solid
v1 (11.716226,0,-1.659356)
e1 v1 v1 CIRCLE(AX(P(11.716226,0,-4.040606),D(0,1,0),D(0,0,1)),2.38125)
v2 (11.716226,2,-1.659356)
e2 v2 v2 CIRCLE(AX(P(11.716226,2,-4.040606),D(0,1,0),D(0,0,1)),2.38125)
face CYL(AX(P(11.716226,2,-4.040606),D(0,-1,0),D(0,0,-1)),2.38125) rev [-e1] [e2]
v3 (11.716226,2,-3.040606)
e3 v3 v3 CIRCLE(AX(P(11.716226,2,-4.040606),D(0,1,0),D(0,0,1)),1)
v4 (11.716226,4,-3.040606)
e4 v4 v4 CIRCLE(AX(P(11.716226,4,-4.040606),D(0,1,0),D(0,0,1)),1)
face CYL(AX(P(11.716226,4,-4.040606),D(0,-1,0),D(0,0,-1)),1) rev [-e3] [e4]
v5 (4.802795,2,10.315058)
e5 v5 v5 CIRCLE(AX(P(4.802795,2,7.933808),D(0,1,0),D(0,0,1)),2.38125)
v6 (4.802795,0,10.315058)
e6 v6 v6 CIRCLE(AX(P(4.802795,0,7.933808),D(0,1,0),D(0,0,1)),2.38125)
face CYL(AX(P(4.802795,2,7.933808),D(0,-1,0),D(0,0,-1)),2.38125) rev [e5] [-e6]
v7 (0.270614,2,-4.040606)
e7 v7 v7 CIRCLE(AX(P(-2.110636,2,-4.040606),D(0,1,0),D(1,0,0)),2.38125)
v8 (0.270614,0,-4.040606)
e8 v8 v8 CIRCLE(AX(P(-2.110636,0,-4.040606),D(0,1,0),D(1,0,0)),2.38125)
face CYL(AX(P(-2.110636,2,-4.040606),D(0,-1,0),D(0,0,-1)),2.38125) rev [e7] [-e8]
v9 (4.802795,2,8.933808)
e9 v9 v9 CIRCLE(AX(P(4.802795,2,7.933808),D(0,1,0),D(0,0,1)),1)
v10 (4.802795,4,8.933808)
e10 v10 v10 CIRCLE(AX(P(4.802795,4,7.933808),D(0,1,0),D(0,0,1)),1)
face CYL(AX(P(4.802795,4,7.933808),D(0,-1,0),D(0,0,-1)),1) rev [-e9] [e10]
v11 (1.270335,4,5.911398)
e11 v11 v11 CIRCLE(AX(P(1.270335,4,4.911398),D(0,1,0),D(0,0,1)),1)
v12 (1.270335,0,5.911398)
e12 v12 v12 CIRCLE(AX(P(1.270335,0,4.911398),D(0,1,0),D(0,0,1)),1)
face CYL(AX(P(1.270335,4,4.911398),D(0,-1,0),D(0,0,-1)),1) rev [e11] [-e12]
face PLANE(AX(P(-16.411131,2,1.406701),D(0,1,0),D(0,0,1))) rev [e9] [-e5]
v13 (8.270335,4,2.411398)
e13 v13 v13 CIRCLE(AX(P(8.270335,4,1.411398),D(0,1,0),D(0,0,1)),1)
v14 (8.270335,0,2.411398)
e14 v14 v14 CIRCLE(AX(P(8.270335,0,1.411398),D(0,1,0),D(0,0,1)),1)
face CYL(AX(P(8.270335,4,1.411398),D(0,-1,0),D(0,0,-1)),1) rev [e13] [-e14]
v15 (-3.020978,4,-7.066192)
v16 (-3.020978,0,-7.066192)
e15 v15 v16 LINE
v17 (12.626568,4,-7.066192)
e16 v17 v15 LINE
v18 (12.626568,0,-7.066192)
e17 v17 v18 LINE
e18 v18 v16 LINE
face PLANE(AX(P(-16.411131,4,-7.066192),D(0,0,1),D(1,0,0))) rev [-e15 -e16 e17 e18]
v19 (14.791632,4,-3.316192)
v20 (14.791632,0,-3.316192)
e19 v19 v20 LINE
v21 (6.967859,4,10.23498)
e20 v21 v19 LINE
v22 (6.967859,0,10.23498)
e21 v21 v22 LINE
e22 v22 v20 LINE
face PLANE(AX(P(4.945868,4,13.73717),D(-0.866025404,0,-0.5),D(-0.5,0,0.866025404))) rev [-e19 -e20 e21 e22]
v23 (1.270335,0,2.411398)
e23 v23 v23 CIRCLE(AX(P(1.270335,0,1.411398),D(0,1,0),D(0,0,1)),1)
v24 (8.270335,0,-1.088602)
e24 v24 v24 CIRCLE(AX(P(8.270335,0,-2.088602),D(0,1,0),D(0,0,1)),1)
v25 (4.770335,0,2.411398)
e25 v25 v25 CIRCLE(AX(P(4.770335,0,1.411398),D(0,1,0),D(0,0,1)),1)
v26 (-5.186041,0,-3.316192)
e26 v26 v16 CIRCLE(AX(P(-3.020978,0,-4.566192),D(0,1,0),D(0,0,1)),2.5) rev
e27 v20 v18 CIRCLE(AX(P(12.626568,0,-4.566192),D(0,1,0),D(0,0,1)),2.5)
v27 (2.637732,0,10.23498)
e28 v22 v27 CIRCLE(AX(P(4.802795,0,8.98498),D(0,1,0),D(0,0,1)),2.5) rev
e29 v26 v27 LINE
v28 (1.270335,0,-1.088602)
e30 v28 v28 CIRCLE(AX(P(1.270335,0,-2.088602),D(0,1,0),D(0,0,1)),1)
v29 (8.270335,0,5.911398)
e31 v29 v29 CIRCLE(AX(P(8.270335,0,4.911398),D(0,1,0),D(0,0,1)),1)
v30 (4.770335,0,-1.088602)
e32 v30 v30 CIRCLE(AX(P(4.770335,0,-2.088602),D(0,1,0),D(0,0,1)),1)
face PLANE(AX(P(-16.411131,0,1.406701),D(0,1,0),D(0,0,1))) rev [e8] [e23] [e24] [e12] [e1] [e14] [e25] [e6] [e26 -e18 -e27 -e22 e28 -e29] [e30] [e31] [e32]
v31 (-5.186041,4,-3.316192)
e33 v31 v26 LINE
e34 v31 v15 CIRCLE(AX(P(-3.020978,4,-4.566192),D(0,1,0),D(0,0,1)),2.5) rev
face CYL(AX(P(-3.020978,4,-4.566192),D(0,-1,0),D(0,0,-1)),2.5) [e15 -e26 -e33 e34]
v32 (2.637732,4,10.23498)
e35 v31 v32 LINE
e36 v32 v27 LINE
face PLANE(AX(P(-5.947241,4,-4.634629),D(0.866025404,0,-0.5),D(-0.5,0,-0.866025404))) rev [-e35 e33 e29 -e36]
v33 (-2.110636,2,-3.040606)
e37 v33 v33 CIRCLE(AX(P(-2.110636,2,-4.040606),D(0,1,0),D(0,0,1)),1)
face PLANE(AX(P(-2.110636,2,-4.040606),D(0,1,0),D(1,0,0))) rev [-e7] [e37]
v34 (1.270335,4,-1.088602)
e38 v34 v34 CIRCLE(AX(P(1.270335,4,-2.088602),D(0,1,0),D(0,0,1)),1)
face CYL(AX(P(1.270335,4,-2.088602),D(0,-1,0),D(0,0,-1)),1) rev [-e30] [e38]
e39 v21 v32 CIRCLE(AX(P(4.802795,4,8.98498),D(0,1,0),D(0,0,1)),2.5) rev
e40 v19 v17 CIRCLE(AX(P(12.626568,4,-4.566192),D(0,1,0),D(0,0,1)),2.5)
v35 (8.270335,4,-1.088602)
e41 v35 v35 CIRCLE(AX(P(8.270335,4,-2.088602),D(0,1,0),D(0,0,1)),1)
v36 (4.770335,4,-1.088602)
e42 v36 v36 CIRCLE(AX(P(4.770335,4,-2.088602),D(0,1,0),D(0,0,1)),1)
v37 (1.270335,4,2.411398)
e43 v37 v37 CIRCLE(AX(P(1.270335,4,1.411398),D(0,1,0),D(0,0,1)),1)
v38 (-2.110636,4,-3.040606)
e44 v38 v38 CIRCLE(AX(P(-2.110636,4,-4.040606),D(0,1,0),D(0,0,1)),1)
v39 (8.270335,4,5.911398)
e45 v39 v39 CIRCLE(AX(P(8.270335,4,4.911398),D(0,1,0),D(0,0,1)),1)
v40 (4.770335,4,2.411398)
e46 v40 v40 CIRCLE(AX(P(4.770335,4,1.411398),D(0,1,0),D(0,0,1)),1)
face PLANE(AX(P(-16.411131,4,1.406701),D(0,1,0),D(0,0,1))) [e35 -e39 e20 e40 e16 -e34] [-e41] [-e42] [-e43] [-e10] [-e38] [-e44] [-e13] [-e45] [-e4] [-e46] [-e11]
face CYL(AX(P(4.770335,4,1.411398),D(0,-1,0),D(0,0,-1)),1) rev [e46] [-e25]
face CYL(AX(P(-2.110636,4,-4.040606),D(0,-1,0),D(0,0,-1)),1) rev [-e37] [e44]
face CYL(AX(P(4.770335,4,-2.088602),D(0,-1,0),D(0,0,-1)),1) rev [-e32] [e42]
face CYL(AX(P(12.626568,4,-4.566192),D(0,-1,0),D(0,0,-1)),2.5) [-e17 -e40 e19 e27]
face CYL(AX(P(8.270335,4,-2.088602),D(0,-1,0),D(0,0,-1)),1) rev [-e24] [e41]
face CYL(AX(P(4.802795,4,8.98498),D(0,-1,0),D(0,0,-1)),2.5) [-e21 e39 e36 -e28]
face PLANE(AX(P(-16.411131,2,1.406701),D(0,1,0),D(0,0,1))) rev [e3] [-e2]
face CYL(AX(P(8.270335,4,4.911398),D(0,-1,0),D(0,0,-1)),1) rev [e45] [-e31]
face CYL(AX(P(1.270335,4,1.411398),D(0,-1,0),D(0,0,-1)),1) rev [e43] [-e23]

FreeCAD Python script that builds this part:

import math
import FreeCAD as App
import Part
import Sketcher
Q = App.Units.Quantity

doc = App.newDocument("Part")
body = doc.addObject("PartDesign::Body", "Body")

sketch1 = body.newObject("Sketcher::SketchObject", "Sketch")
sketch1.AttachmentSupport = (doc.getObject("XZ_Plane"), [""])
sketch1.MapMode = "FlatFace"
sketch1.addGeometry([
    Part.LineSegment(App.Vector(-5.2, -3.3, 0), App.Vector(2.6, 10.2, 0)),
    Part.ArcOfCircle(Part.Circle(App.Vector(4.8, 9, 0), App.Vector(0, 0, 1), 2.5), math.radians(30), math.radians(150)),
    Part.LineSegment(App.Vector(7, 10.2, 0), App.Vector(14.8, -3.3, 0)),
    Part.ArcOfCircle(Part.Circle(App.Vector(12.6, -4.6, 0), App.Vector(0, 0, 1), 2.5), math.radians(-90), math.radians(30)),
    Part.LineSegment(App.Vector(12.6, -7.1, 0), App.Vector(-3, -7.1, 0)),
    Part.ArcOfCircle(Part.Circle(App.Vector(-3, -4.6, 0), App.Vector(0, 0, 1), 2.5), math.radians(150), math.radians(270)),
    Part.Circle(App.Vector(1.3, 4.9, 0), App.Vector(0, 0, 1), 1),
    Part.Circle(App.Vector(4.8, 7.9, 0), App.Vector(0, 0, 1), 1),
    Part.Circle(App.Vector(8.3, 4.9, 0), App.Vector(0, 0, 1), 1),
    Part.Circle(App.Vector(1.3, 1.4, 0), App.Vector(0, 0, 1), 1),
    Part.Circle(App.Vector(4.8, 1.4, 0), App.Vector(0, 0, 1), 1),
    Part.Circle(App.Vector(-2.1, -4, 0), App.Vector(0, 0, 1), 1),
    Part.Circle(App.Vector(1.3, -2.1, 0), App.Vector(0, 0, 1), 1),
    Part.Circle(App.Vector(4.8, -2.1, 0), App.Vector(0, 0, 1), 1),
    Part.Circle(App.Vector(8.3, 1.4, 0), App.Vector(0, 0, 1), 1),
    Part.Circle(App.Vector(8.3, -2.1, 0), App.Vector(0, 0, 1), 1),
    Part.Circle(App.Vector(11.7, -4, 0), App.Vector(0, 0, 1), 1),
], False)
sketch1.addConstraint([
    Sketcher.Constraint("Tangent", 0, 2, 1, 2),
    Sketcher.Constraint("Tangent", 1, 1, 2, 1),
    Sketcher.Constraint("Tangent", 2, 2, 3, 2),
    Sketcher.Constraint("Tangent", 3, 1, 4, 1),
    Sketcher.Constraint("Tangent", 4, 2, 5, 2),
    Sketcher.Constraint("Tangent", 5, 1, 0, 1),
    Sketcher.Constraint("Horizontal", 4),
    Sketcher.Constraint("Equal", 1, 3),
    Sketcher.Constraint("Equal", 3, 5),
    Sketcher.Constraint("Equal", 6, 7),
    Sketcher.Constraint("Equal", 7, 8),
    Sketcher.Constraint("Equal", 8, 9),
    Sketcher.Constraint("Equal", 9, 10),
    Sketcher.Constraint("Equal", 10, 11),
    Sketcher.Constraint("Equal", 11, 12),
    Sketcher.Constraint("Equal", 12, 13),
    Sketcher.Constraint("Equal", 13, 14),
    Sketcher.Constraint("Equal", 14, 15),
    Sketcher.Constraint("Equal", 15, 16),
    Sketcher.Constraint("Horizontal", 6, 3, 8, 3),
    Sketcher.Constraint("Horizontal", 9, 3, 10, 3),
    Sketcher.Constraint("Horizontal", 12, 3, 13, 3),
    Sketcher.Constraint("Horizontal", 10, 3, 14, 3),
    Sketcher.Constraint("Horizontal", 13, 3, 15, 3),
    Sketcher.Constraint("Horizontal", 11, 3, 16, 3),
    Sketcher.Constraint("Horizontal", 0, 2, 1, 1),
    Sketcher.Constraint("Vertical", 1, 3, 7, 3),
    Sketcher.Constraint("Vertical", 6, 3, 9, 3),
    Sketcher.Constraint("Vertical", 9, 3, 12, 3),
    Sketcher.Constraint("Vertical", 10, 3, 13, 3),
    Sketcher.Constraint("Vertical", 8, 3, 14, 3),
    Sketcher.Constraint("Vertical", 14, 3, 15, 3),
    Sketcher.Constraint("Diameter", 6, 2.0),
    Sketcher.Constraint("Radius", 1, 2.5),
    Sketcher.Constraint("Angle", 0, Q("60 deg")),
    Sketcher.Constraint("DistanceX", 6, 3, 8, 3, 7.0),
    Sketcher.Constraint("DistanceY", 12, 3, 6, 3, 7.0),
    Sketcher.Constraint("DistanceY", 5, 3, 7, 3, 12.5),
    Sketcher.Constraint("DistanceY", 9, 3, 6, 3, 3.5),
    Sketcher.Constraint("DistanceX", 9, 3, 10, 3, 3.5),
    Sketcher.Constraint("DistanceX", 4, 2, 4, 1, 15.647546),
    Sketcher.Constraint("DistanceY", -1, 1, 1, 3, 8.98498),
    Sketcher.Constraint("DistanceX", -1, 1, 3, 3, 12.626568),
    Sketcher.Constraint("DistanceX", 6, 3, 1, 3, 3.532461),
    Sketcher.Constraint("DistanceY", 5, 3, 6, 3, 9.47759),
    Sketcher.Constraint("DistanceX", 5, 3, 11, 3, 0.910342),
    Sketcher.Constraint("DistanceX", 16, 3, 3, 3, 0.910342),
    Sketcher.Constraint("DistanceY", 11, 3, -1, 1, 4.040606),
])
pad1 = body.newObject("PartDesign::Pad", "Pad")
pad1.Profile = sketch1
pad1.Length = 4
pad1.Reversed = True

sketch2 = body.newObject("Sketcher::SketchObject", "Sketch001")
sketch2.AttachmentSupport = (doc.getObject("XZ_Plane"), [""])
sketch2.MapMode = "FlatFace"
sketch2.addGeometry([
    Part.Circle(App.Vector(-2.1, -4, 0), App.Vector(0, 0, 1), 2.4),
    Part.Circle(App.Vector(4.8, 7.9, 0), App.Vector(0, 0, 1), 2.4),
    Part.Circle(App.Vector(11.7, -4, 0), App.Vector(0, 0, 1), 2.4),
], False)
sketch2.addConstraint([
    Sketcher.Constraint("Equal", 0, 1),
    Sketcher.Constraint("Equal", 1, 2),
    Sketcher.Constraint("Horizontal", 0, 3, 2, 3),
    Sketcher.Constraint("Diameter", 0, 4.7625),
    Sketcher.Constraint("DistanceX", 0, 3, 1, 3, 6.913431),
    Sketcher.Constraint("DistanceX", 1, 3, 2, 3, 6.913431),
    Sketcher.Constraint("DistanceX", 0, 3, -1, 1, 2.110636),
    Sketcher.Constraint("DistanceY", 0, 3, -1, 1, 4.040606),
    Sketcher.Constraint("DistanceY", -1, 1, 1, 3, 7.933808),
])
pocket1 = body.newObject("PartDesign::Pocket", "Pocket")
pocket1.Profile = sketch2
pocket1.Length = 2

doc.recompute()
